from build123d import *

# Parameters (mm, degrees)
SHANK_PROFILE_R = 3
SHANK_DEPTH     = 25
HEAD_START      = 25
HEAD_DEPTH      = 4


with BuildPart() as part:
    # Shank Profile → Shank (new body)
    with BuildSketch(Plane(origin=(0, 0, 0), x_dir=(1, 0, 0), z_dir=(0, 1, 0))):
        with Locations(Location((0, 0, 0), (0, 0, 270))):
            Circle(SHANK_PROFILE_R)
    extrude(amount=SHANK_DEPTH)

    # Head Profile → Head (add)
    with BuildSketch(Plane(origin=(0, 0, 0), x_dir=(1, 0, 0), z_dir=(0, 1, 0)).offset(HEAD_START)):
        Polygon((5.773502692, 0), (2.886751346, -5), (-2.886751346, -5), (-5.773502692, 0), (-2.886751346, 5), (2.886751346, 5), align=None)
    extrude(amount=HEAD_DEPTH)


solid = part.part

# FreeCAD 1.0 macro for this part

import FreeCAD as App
import Part
import Sketcher
from FreeCAD import Vector
Q = App.Units.Quantity

doc = App.newDocument("Part")
body = doc.addObject("PartDesign::Body", "Body")

# Sketch on XZ plane
sketch1 = body.newObject("Sketcher::SketchObject", "Sketch")
sketch1.AttachmentSupport = (doc.getObject("XZ_Plane"), [""])
sketch1.MapMode = "FlatFace"
sketch1.addGeometry(Part.Circle(Vector(0, 0, 0), Vector(0, 0, 1), 3), False)
sketch1.addConstraint(Sketcher.Constraint("Coincident", 0, 3, -1, 1))
sketch1.addConstraint(Sketcher.Constraint("Diameter", 0, 6.0))
pad1 = body.newObject("PartDesign::Pad", "Pad")
pad1.Profile = sketch1
pad1.Length = 25
pad1.Reversed = True

# Sketch on XZ plane
sketch2 = body.newObject("Sketcher::SketchObject", "Sketch001")
sketch2.AttachmentSupport = (doc.getObject("XZ_Plane"), [""])
sketch2.MapMode = "FlatFace"
sketch2.AttachmentOffset = App.Placement(Vector(0, 0, -25), App.Rotation())
sketch2.addGeometry(Part.LineSegment(Vector(3, 5, 0), Vector(6, 0, 0)), False)
sketch2.addGeometry(Part.LineSegment(Vector(6, 0, 0), Vector(3, -5, 0)), False)
sketch2.addGeometry(Part.LineSegment(Vector(3, -5, 0), Vector(-3, -5, 0)), False)
sketch2.addGeometry(Part.LineSegment(Vector(-3, -5, 0), Vector(-6, 0, 0)), False)
sketch2.addGeometry(Part.LineSegment(Vector(-6, 0, 0), Vector(-3, 5, 0)), False)
sketch2.addGeometry(Part.LineSegment(Vector(-3, 5, 0), Vector(3, 5, 0)), False)
sketch2.addConstraint(Sketcher.Constraint("Coincident", 0, 2, 1, 1))
sketch2.addConstraint(Sketcher.Constraint("Coincident", 1, 2, 2, 1))
sketch2.addConstraint(Sketcher.Constraint("Coincident", 2, 2, 3, 1))
sketch2.addConstraint(Sketcher.Constraint("Coincident", 3, 2, 4, 1))
sketch2.addConstraint(Sketcher.Constraint("Coincident", 4, 2, 5, 1))
sketch2.addConstraint(Sketcher.Constraint("Coincident", 5, 2, 0, 1))
sketch2.addConstraint(Sketcher.Constraint("Horizontal", 2))
sketch2.addConstraint(Sketcher.Constraint("Horizontal", 5))
sketch2.addConstraint(Sketcher.Constraint("Symmetric", 0, 2, 3, 2, -1, 1))
sketch2.addConstraint(Sketcher.Constraint("Symmetric", 1, 2, 4, 2, -1, 1))
sketch2.addConstraint(Sketcher.Constraint("PointOnObject", 0, 2, -1))
sketch2.addConstraint(Sketcher.Constraint("Parallel", 0, 3))
sketch2.addConstraint(Sketcher.Constraint("Vertical", 2, 2, 4, 2))
sketch2.addConstraint(Sketcher.Constraint("Angle", 0, Q("-60 deg")))
sketch2.addConstraint(Sketcher.Constraint("DistanceY", 1, 2, -1, 1, 5.0))
sketch2.addConstraint(Sketcher.Constraint("DistanceX", 2, 2, 2, 1, 5.773503))
pad2 = body.newObject("PartDesign::Pad", "Pad001")
pad2.Profile = sketch2
pad2.Length = 4
pad2.Reversed = True

doc.recompute()
